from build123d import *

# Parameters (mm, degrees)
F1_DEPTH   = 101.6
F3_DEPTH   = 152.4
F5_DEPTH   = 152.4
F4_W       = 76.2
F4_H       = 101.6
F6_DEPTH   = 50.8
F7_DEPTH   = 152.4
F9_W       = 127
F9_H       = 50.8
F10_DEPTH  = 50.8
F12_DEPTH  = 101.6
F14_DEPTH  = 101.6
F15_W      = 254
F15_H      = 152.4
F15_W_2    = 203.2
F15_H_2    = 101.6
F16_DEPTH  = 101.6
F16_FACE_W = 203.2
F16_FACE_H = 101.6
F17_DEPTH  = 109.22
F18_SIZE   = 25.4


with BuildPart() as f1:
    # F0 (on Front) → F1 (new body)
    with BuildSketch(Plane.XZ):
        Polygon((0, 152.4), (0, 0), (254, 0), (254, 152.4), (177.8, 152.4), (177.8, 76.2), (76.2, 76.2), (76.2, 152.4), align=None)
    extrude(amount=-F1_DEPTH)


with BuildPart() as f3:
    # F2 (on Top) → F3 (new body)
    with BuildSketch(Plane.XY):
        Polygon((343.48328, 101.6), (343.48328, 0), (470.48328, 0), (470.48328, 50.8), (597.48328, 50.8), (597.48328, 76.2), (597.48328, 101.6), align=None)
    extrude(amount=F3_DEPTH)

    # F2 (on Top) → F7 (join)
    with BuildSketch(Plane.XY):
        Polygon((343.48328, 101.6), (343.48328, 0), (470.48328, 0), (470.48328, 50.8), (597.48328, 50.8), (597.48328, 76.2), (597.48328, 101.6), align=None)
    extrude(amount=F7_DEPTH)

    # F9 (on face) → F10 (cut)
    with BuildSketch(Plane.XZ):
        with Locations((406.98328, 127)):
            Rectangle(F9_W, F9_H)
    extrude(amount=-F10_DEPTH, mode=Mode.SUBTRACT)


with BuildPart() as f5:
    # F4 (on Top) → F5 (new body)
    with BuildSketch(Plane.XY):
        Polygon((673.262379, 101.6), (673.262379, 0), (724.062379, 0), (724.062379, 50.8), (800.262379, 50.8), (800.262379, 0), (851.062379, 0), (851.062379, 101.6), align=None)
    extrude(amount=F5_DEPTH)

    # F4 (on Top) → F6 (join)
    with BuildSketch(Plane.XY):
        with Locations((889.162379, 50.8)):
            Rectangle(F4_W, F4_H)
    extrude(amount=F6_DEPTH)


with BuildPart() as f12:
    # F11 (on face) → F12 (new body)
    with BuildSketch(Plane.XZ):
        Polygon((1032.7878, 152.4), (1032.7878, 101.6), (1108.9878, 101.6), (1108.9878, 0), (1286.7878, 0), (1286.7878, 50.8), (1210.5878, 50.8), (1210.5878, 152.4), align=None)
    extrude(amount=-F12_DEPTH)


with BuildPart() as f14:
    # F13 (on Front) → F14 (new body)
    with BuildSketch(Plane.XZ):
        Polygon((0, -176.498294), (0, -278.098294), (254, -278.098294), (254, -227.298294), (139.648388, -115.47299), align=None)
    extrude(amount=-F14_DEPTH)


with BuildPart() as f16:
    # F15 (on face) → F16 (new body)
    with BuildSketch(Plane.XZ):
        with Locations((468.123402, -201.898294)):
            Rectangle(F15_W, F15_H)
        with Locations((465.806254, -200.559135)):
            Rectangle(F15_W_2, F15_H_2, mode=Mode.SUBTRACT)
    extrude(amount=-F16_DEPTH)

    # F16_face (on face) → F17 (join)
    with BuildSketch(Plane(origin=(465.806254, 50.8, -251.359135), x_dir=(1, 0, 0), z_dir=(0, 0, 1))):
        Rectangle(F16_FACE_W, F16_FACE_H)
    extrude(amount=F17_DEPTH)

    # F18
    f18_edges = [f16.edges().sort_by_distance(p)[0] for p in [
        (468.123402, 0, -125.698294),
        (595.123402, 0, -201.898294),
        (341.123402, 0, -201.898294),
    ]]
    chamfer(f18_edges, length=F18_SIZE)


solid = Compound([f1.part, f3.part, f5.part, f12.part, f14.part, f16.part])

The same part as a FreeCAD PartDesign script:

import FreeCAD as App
import Part
import Sketcher
Q = App.Units.Quantity


def edges_at(feature, points):
    """Names of the edges that pass closest to the given points."""
    edges = feature.Shape.Edges
    near = lambda p: min(range(len(edges)), key=lambda i: edges[i].distToShape(Part.Vertex(*p))[0])
    return sorted({f"Edge{near(p) + 1}" for p in points})

doc = App.newDocument("Part")
body = doc.addObject("PartDesign::Body", "Body")

# Sketch on XZ plane
sketch1 = doc.addObject("Sketcher::SketchObject", "Sketch")
body.addObject(sketch1)
sketch1.AttachmentSupport = (doc.XZ_Plane, [""])
sketch1.MapMode = "FlatFace"
sketch1.addGeometry(Part.LineSegment(App.Vector(0, 152.4, 0), App.Vector(0, 0, 0)), False)
sketch1.addGeometry(Part.LineSegment(App.Vector(0, 0, 0), App.Vector(254, 0, 0)), False)
sketch1.addGeometry(Part.LineSegment(App.Vector(254, 0, 0), App.Vector(254, 152.4, 0)), False)
sketch1.addGeometry(Part.LineSegment(App.Vector(254, 152.4, 0), App.Vector(177.8, 152.4, 0)), False)
sketch1.addGeometry(Part.LineSegment(App.Vector(177.8, 152.4, 0), App.Vector(177.8, 76.2, 0)), False)
sketch1.addGeometry(Part.LineSegment(App.Vector(177.8, 76.2, 0), App.Vector(76.2, 76.2, 0)), False)
sketch1.addGeometry(Part.LineSegment(App.Vector(76.2, 76.2, 0), App.Vector(76.2, 152.4, 0)), False)
sketch1.addGeometry(Part.LineSegment(App.Vector(76.2, 152.4, 0), App.Vector(0, 152.4, 0)), False)
sketch1.addConstraint(Sketcher.Constraint("Coincident", 0, 2, 1, 1))
sketch1.addConstraint(Sketcher.Constraint("Coincident", 1, 2, 2, 1))
sketch1.addConstraint(Sketcher.Constraint("Coincident", 2, 2, 3, 1))
sketch1.addConstraint(Sketcher.Constraint("Coincident", 3, 2, 4, 1))
sketch1.addConstraint(Sketcher.Constraint("Coincident", 4, 2, 5, 1))
sketch1.addConstraint(Sketcher.Constraint("Coincident", 5, 2, 6, 1))
sketch1.addConstraint(Sketcher.Constraint("Coincident", 6, 2, 7, 1))
sketch1.addConstraint(Sketcher.Constraint("Coincident", 7, 2, 0, 1))
sketch1.addConstraint(Sketcher.Constraint("Vertical", 0))
sketch1.addConstraint(Sketcher.Constraint("Horizontal", 1))
sketch1.addConstraint(Sketcher.Constraint("Vertical", 2))
sketch1.addConstraint(Sketcher.Constraint("Horizontal", 3))
sketch1.addConstraint(Sketcher.Constraint("Vertical", 4))
sketch1.addConstraint(Sketcher.Constraint("Horizontal", 5))
sketch1.addConstraint(Sketcher.Constraint("Vertical", 6))
sketch1.addConstraint(Sketcher.Constraint("Horizontal", 7))
sketch1.addConstraint(Sketcher.Constraint("Coincident", 0, 2, -1, 1))
sketch1.addConstraint(Sketcher.Constraint("Horizontal", 3, 2, 6, 2))
sketch1.addConstraint(Sketcher.Constraint("Equal", 3, 7))
sketch1.addConstraint(Sketcher.Constraint("Equal", 7, 4))
sketch1.addConstraint(Sketcher.Constraint("DistanceX", 1, 1, 1, 2, Q("10 in")))
sketch1.addConstraint(Sketcher.Constraint("DistanceX", 3, 2, 3, 1, Q("3 in")))
sketch1.addConstraint(Sketcher.Constraint("DistanceY", 0, 2, 0, 1, Q("6 in")))
pad1 = doc.addObject("PartDesign::Pad", "Pad")
body.addObject(pad1)
pad1.Profile = sketch1
pad1.Length = Q("4 in")
pad1.Reversed = True
body2 = doc.addObject("PartDesign::Body", "Body001")

# Sketch on XY plane
sketch2 = doc.addObject("Sketcher::SketchObject", "Sketch001")
body2.addObject(sketch2)
sketch2.AttachmentSupport = (doc.getObject("XY_Plane001"), [""])
sketch2.MapMode = "FlatFace"
sketch2.addGeometry(Part.LineSegment(App.Vector(343.48328, 101.6, 0), App.Vector(343.48328, 0, 0)), False)
sketch2.addGeometry(Part.LineSegment(App.Vector(343.48328, 0, 0), App.Vector(470.48328, 0, 0)), False)
sketch2.addGeometry(Part.LineSegment(App.Vector(470.48328, 0, 0), App.Vector(470.48328, 50.8, 0)), False)
sketch2.addGeometry(Part.LineSegment(App.Vector(470.48328, 50.8, 0), App.Vector(597.48328, 50.8, 0)), False)
sketch2.addGeometry(Part.LineSegment(App.Vector(597.48328, 50.8, 0), App.Vector(597.48328, 101.6, 0)), False)
sketch2.addGeometry(Part.LineSegment(App.Vector(597.48328, 101.6, 0), App.Vector(343.48328, 101.6, 0)), False)
sketch2.addConstraint(Sketcher.Constraint("Coincident", 0, 2, 1, 1))
sketch2.addConstraint(Sketcher.Constraint("Coincident", 1, 2, 2, 1))
sketch2.addConstraint(Sketcher.Constraint("Coincident", 2, 2, 3, 1))
sketch2.addConstraint(Sketcher.Constraint("Coincident", 3, 2, 4, 1))
sketch2.addConstraint(Sketcher.Constraint("Coincident", 4, 2, 5, 1))
sketch2.addConstraint(Sketcher.Constraint("Coincident", 5, 2, 0, 1))
sketch2.addConstraint(Sketcher.Constraint("Vertical", 0))
sketch2.addConstraint(Sketcher.Constraint("Horizontal", 1))
sketch2.addConstraint(Sketcher.Constraint("Vertical", 2))
sketch2.addConstraint(Sketcher.Constraint("Horizontal", 3))
sketch2.addConstraint(Sketcher.Constraint("Vertical", 4))
sketch2.addConstraint(Sketcher.Constraint("Horizontal", 5))
sketch2.addConstraint(Sketcher.Constraint("PointOnObject", 0, 2, -1))
sketch2.addConstraint(Sketcher.Constraint("Equal", 1, 3))
sketch2.addConstraint(Sketcher.Constraint("Equal", 2, 4))
sketch2.addConstraint(Sketcher.Constraint("DistanceX", 1, 1, 1, 2, Q("5 in")))
sketch2.addConstraint(Sketcher.Constraint("DistanceY", 0, 2, 0, 1, Q("4 in")))
sketch2.addConstraint(Sketcher.Constraint("DistanceX", -1, 1, 0, 2, Q("343.48328 mm")))
pad2 = doc.addObject("PartDesign::Pad", "Pad001")
body2.addObject(pad2)
pad2.Profile = sketch2
pad2.Length = Q("6 in")

# Sketch on XY plane
sketch3 = doc.addObject("Sketcher::SketchObject", "Sketch002")
body2.addObject(sketch3)
sketch3.AttachmentSupport = (doc.getObject("XY_Plane001"), [""])
sketch3.MapMode = "FlatFace"
sketch3.addGeometry(Part.LineSegment(App.Vector(343.48328, 101.6, 0), App.Vector(343.48328, 0, 0)), False)
sketch3.addGeometry(Part.LineSegment(App.Vector(343.48328, 0, 0), App.Vector(470.48328, 0, 0)), False)
sketch3.addGeometry(Part.LineSegment(App.Vector(470.48328, 0, 0), App.Vector(470.48328, 50.8, 0)), False)
sketch3.addGeometry(Part.LineSegment(App.Vector(470.48328, 50.8, 0), App.Vector(597.48328, 50.8, 0)), False)
sketch3.addGeometry(Part.LineSegment(App.Vector(597.48328, 50.8, 0), App.Vector(597.48328, 101.6, 0)), False)
sketch3.addGeometry(Part.LineSegment(App.Vector(597.48328, 101.6, 0), App.Vector(343.48328, 101.6, 0)), False)
sketch3.addConstraint(Sketcher.Constraint("Coincident", 0, 2, 1, 1))
sketch3.addConstraint(Sketcher.Constraint("Coincident", 1, 2, 2, 1))
sketch3.addConstraint(Sketcher.Constraint("Coincident", 2, 2, 3, 1))
sketch3.addConstraint(Sketcher.Constraint("Coincident", 3, 2, 4, 1))
sketch3.addConstraint(Sketcher.Constraint("Coincident", 4, 2, 5, 1))
sketch3.addConstraint(Sketcher.Constraint("Coincident", 5, 2, 0, 1))
sketch3.addConstraint(Sketcher.Constraint("Vertical", 0))
sketch3.addConstraint(Sketcher.Constraint("Horizontal", 1))
sketch3.addConstraint(Sketcher.Constraint("Vertical", 2))
sketch3.addConstraint(Sketcher.Constraint("Horizontal", 3))
sketch3.addConstraint(Sketcher.Constraint("Vertical", 4))
sketch3.addConstraint(Sketcher.Constraint("Horizontal", 5))
sketch3.addConstraint(Sketcher.Constraint("PointOnObject", 0, 2, -1))
sketch3.addConstraint(Sketcher.Constraint("Equal", 1, 3))
sketch3.addConstraint(Sketcher.Constraint("Equal", 2, 4))
sketch3.addConstraint(Sketcher.Constraint("DistanceX", 1, 1, 1, 2, Q("5 in")))
sketch3.addConstraint(Sketcher.Constraint("DistanceY", 0, 2, 0, 1, Q("4 in")))
sketch3.addConstraint(Sketcher.Constraint("DistanceX", -1, 1, 0, 2, Q("343.48328 mm")))
pad3 = doc.addObject("PartDesign::Pad", "Pad002")
body2.addObject(pad3)
pad3.Profile = sketch3
pad3.Length = Q("6 in")

# Sketch on XZ plane
sketch4 = doc.addObject("Sketcher::SketchObject", "Sketch003")
body2.addObject(sketch4)
sketch4.AttachmentSupport = (doc.getObject("XZ_Plane001"), [""])
sketch4.MapMode = "FlatFace"
sketch4.addGeometry(Part.LineSegment(App.Vector(343.48328, 152.4, 0), App.Vector(343.48328, 101.6, 0)), False)
sketch4.addGeometry(Part.LineSegment(App.Vector(343.48328, 101.6, 0), App.Vector(470.48328, 101.6, 0)), False)
sketch4.addGeometry(Part.LineSegment(App.Vector(470.48328, 101.6, 0), App.Vector(470.48328, 152.4, 0)), False)
sketch4.addGeometry(Part.LineSegment(App.Vector(470.48328, 152.4, 0), App.Vector(343.48328, 152.4, 0)), False)
sketch4.addConstraint(Sketcher.Constraint("Coincident", 0, 2, 1, 1))
sketch4.addConstraint(Sketcher.Constraint("Coincident", 1, 2, 2, 1))
sketch4.addConstraint(Sketcher.Constraint("Coincident", 2, 2, 3, 1))
sketch4.addConstraint(Sketcher.Constraint("Coincident", 3, 2, 0, 1))
sketch4.addConstraint(Sketcher.Constraint("Vertical", 0))
sketch4.addConstraint(Sketcher.Constraint("Horizontal", 1))
sketch4.addConstraint(Sketcher.Constraint("Vertical", 2))
sketch4.addConstraint(Sketcher.Constraint("Horizontal", 3))
sketch4.addConstraint(Sketcher.Constraint("DistanceX", 1, 1, 1, 2, Q("5 in")))
sketch4.addConstraint(Sketcher.Constraint("DistanceY", 0, 2, 0, 1, Q("2 in")))
sketch4.addConstraint(Sketcher.Constraint("DistanceY", -1, 1, 0, 2, Q("4 in")))
sketch4.addConstraint(Sketcher.Constraint("DistanceX", -1, 1, 0, 2, Q("343.48328 mm")))
pocket1 = doc.addObject("PartDesign::Pocket", "Pocket")
body2.addObject(pocket1)
pocket1.Profile = sketch4
pocket1.Length = Q("2 in")
body3 = doc.addObject("PartDesign::Body", "Body002")

# Sketch on XY plane
sketch5 = doc.addObject("Sketcher::SketchObject", "Sketch004")
body3.addObject(sketch5)
sketch5.AttachmentSupport = (doc.getObject("XY_Plane002"), [""])
sketch5.MapMode = "FlatFace"
sketch5.addGeometry(Part.LineSegment(App.Vector(673.262379, 101.6, 0), App.Vector(673.262379, 0, 0)), False)
sketch5.addGeometry(Part.LineSegment(App.Vector(673.262379, 0, 0), App.Vector(724.062379, 0, 0)), False)
sketch5.addGeometry(Part.LineSegment(App.Vector(724.062379, 0, 0), App.Vector(724.062379, 50.8, 0)), False)
sketch5.addGeometry(Part.LineSegment(App.Vector(724.062379, 50.8, 0), App.Vector(800.262379, 50.8, 0)), False)
sketch5.addGeometry(Part.LineSegment(App.Vector(800.262379, 50.8, 0), App.Vector(800.262379, 0, 0)), False)
sketch5.addGeometry(Part.LineSegment(App.Vector(800.262379, 0, 0), App.Vector(851.062379, 0, 0)), False)
sketch5.addGeometry(Part.LineSegment(App.Vector(851.062379, 0, 0), App.Vector(851.062379, 101.6, 0)), False)
sketch5.addGeometry(Part.LineSegment(App.Vector(851.062379, 101.6, 0), App.Vector(673.262379, 101.6, 0)), False)
sketch5.addConstraint(Sketcher.Constraint("Coincident", 0, 2, 1, 1))
sketch5.addConstraint(Sketcher.Constraint("Coincident", 1, 2, 2, 1))
sketch5.addConstraint(Sketcher.Constraint("Coincident", 2, 2, 3, 1))
sketch5.addConstraint(Sketcher.Constraint("Coincident", 3, 2, 4, 1))
sketch5.addConstraint(Sketcher.Constraint("Coincident", 4, 2, 5, 1))
sketch5.addConstraint(Sketcher.Constraint("Coincident", 5, 2, 6, 1))
sketch5.addConstraint(Sketcher.Constraint("Coincident", 6, 2, 7, 1))
sketch5.addConstraint(Sketcher.Constraint("Coincident", 7, 2, 0, 1))
sketch5.addConstraint(Sketcher.Constraint("Vertical", 0))
sketch5.addConstraint(Sketcher.Constraint("Horizontal", 1))
sketch5.addConstraint(Sketcher.Constraint("Vertical", 2))
sketch5.addConstraint(Sketcher.Constraint("Horizontal", 3))
sketch5.addConstraint(Sketcher.Constraint("Vertical", 4))
sketch5.addConstraint(Sketcher.Constraint("Horizontal", 5))
sketch5.addConstraint(Sketcher.Constraint("Vertical", 6))
sketch5.addConstraint(Sketcher.Constraint("Horizontal", 7))
sketch5.addConstraint(Sketcher.Constraint("PointOnObject", 0, 2, -1))
sketch5.addConstraint(Sketcher.Constraint("PointOnObject", 4, 2, -1))
sketch5.addConstraint(Sketcher.Constraint("Equal", 1, 5))
sketch5.addConstraint(Sketcher.Constraint("Equal", 5, 2))
sketch5.addConstraint(Sketcher.Constraint("DistanceX", 1, 1, 1, 2, Q("2 in")))
sketch5.addConstraint(Sketcher.Constraint("DistanceX", 3, 1, 3, 2, Q("3 in")))
sketch5.addConstraint(Sketcher.Constraint("DistanceY", 0, 2, 0, 1, Q("4 in")))
sketch5.addConstraint(Sketcher.Constraint("DistanceX", -1, 1, 0, 2, Q("673.262379 mm")))
pad4 = doc.addObject("PartDesign::Pad", "Pad003")
body3.addObject(pad4)
pad4.Profile = sketch5
pad4.Length = Q("6 in")

# Sketch on XY plane
sketch6 = doc.addObject("Sketcher::SketchObject", "Sketch005")
body3.addObject(sketch6)
sketch6.AttachmentSupport = (doc.getObject("XY_Plane002"), [""])
sketch6.MapMode = "FlatFace"
sketch6.addGeometry(Part.LineSegment(App.Vector(851.062379, 101.6, 0), App.Vector(851.062379, 0, 0)), False)
sketch6.addGeometry(Part.LineSegment(App.Vector(851.062379, 0, 0), App.Vector(927.262379, 0, 0)), False)
sketch6.addGeometry(Part.LineSegment(App.Vector(927.262379, 0, 0), App.Vector(927.262379, 101.6, 0)), False)
sketch6.addGeometry(Part.LineSegment(App.Vector(927.262379, 101.6, 0), App.Vector(851.062379, 101.6, 0)), False)
sketch6.addConstraint(Sketcher.Constraint("Coincident", 0, 2, 1, 1))
sketch6.addConstraint(Sketcher.Constraint("Coincident", 1, 2, 2, 1))
sketch6.addConstraint(Sketcher.Constraint("Coincident", 2, 2, 3, 1))
sketch6.addConstraint(Sketcher.Constraint("Coincident", 3, 2, 0, 1))
sketch6.addConstraint(Sketcher.Constraint("Vertical", 0))
sketch6.addConstraint(Sketcher.Constraint("Horizontal", 1))
sketch6.addConstraint(Sketcher.Constraint("Vertical", 2))
sketch6.addConstraint(Sketcher.Constraint("Horizontal", 3))
sketch6.addConstraint(Sketcher.Constraint("PointOnObject", 0, 2, -1))
sketch6.addConstraint(Sketcher.Constraint("DistanceX", 1, 1, 1, 2, Q("3 in")))
sketch6.addConstraint(Sketcher.Constraint("DistanceY", 0, 2, 0, 1, Q("4 in")))
sketch6.addConstraint(Sketcher.Constraint("DistanceX", -1, 1, 0, 2, Q("851.062379 mm")))
pad5 = doc.addObject("PartDesign::Pad", "Pad004")
body3.addObject(pad5)
pad5.Profile = sketch6
pad5.Length = Q("2 in")
body4 = doc.addObject("PartDesign::Body", "Body003")

# Sketch on XZ plane
sketch7 = doc.addObject("Sketcher::SketchObject", "Sketch006")
body4.addObject(sketch7)
sketch7.AttachmentSupport = (doc.getObject("XZ_Plane003"), [""])
sketch7.MapMode = "FlatFace"
sketch7.addGeometry(Part.LineSegment(App.Vector(1032.7878, 152.4, 0), App.Vector(1032.7878, 101.6, 0)), False)
sketch7.addGeometry(Part.LineSegment(App.Vector(1032.7878, 101.6, 0), App.Vector(1108.9878, 101.6, 0)), False)
sketch7.addGeometry(Part.LineSegment(App.Vector(1108.9878, 101.6, 0), App.Vector(1108.9878, 0, 0)), False)
sketch7.addGeometry(Part.LineSegment(App.Vector(1108.9878, 0, 0), App.Vector(1286.7878, 0, 0)), False)
sketch7.addGeometry(Part.LineSegment(App.Vector(1286.7878, 0, 0), App.Vector(1286.7878, 50.8, 0)), False)
sketch7.addGeometry(Part.LineSegment(App.Vector(1286.7878, 50.8, 0), App.Vector(1210.5878, 50.8, 0)), False)
sketch7.addGeometry(Part.LineSegment(App.Vector(1210.5878, 50.8, 0), App.Vector(1210.5878, 152.4, 0)), False)
sketch7.addGeometry(Part.LineSegment(App.Vector(1210.5878, 152.4, 0), App.Vector(1032.7878, 152.4, 0)), False)
sketch7.addConstraint(Sketcher.Constraint("Coincident", 0, 2, 1, 1))
sketch7.addConstraint(Sketcher.Constraint("Coincident", 1, 2, 2, 1))
sketch7.addConstraint(Sketcher.Constraint("Coincident", 2, 2, 3, 1))
sketch7.addConstraint(Sketcher.Constraint("Coincident", 3, 2, 4, 1))
sketch7.addConstraint(Sketcher.Constraint("Coincident", 4, 2, 5, 1))
sketch7.addConstraint(Sketcher.Constraint("Coincident", 5, 2, 6, 1))
sketch7.addConstraint(Sketcher.Constraint("Coincident", 6, 2, 7, 1))
sketch7.addConstraint(Sketcher.Constraint("Coincident", 7, 2, 0, 1))
sketch7.addConstraint(Sketcher.Constraint("Vertical", 0))
sketch7.addConstraint(Sketcher.Constraint("Horizontal", 1))
sketch7.addConstraint(Sketcher.Constraint("Vertical", 2))
sketch7.addConstraint(Sketcher.Constraint("Horizontal", 3))
sketch7.addConstraint(Sketcher.Constraint("Vertical", 4))
sketch7.addConstraint(Sketcher.Constraint("Horizontal", 5))
sketch7.addConstraint(Sketcher.Constraint("Vertical", 6))
sketch7.addConstraint(Sketcher.Constraint("Horizontal", 7))
sketch7.addConstraint(Sketcher.Constraint("PointOnObject", 2, 2, -1))
sketch7.addConstraint(Sketcher.Constraint("Equal", 1, 5))
sketch7.addConstraint(Sketcher.Constraint("Equal", 0, 4))
sketch7.addConstraint(Sketcher.Constraint("DistanceX", 1, 1, 1, 2, Q("3 in")))
sketch7.addConstraint(Sketcher.Constraint("DistanceX", 3, 1, 3, 2, Q("7 in")))
sketch7.addConstraint(Sketcher.Constraint("DistanceY", 0, 2, 0, 1, Q("2 in")))
sketch7.addConstraint(Sketcher.Constraint("DistanceY", 2, 2, 2, 1, Q("4 in")))
sketch7.addConstraint(Sketcher.Constraint("DistanceX", -1, 1, 0, 2, Q("1032.7878 mm")))
pad6 = doc.addObject("PartDesign::Pad", "Pad005")
body4.addObject(pad6)
pad6.Profile = sketch7
pad6.Length = Q("4 in")
pad6.Reversed = True
body5 = doc.addObject("PartDesign::Body", "Body004")

# Sketch on XZ plane
sketch8 = doc.addObject("Sketcher::SketchObject", "Sketch007")
body5.addObject(sketch8)
sketch8.AttachmentSupport = (doc.getObject("XZ_Plane004"), [""])
sketch8.MapMode = "FlatFace"
sketch8.addGeometry(Part.LineSegment(App.Vector(0, -176.498294, 0), App.Vector(0, -278.098294, 0)), False)
sketch8.addGeometry(Part.LineSegment(App.Vector(0, -278.098294, 0), App.Vector(254, -278.098294, 0)), False)
sketch8.addGeometry(Part.LineSegment(App.Vector(254, -278.098294, 0), App.Vector(254, -227.298294, 0)), False)
sketch8.addGeometry(Part.LineSegment(App.Vector(254, -227.298294, 0), App.Vector(139.648388, -115.47299, 0)), False)
sketch8.addGeometry(Part.LineSegment(App.Vector(139.648388, -115.47299, 0), App.Vector(0, -176.498294, 0)), False)
sketch8.addConstraint(Sketcher.Constraint("Coincident", 0, 2, 1, 1))
sketch8.addConstraint(Sketcher.Constraint("Coincident", 1, 2, 2, 1))
sketch8.addConstraint(Sketcher.Constraint("Coincident", 2, 2, 3, 1))
sketch8.addConstraint(Sketcher.Constraint("Coincident", 3, 2, 4, 1))
sketch8.addConstraint(Sketcher.Constraint("Coincident", 4, 2, 0, 1))
sketch8.addConstraint(Sketcher.Constraint("Vertical", 0))
sketch8.addConstraint(Sketcher.Constraint("Horizontal", 1))
sketch8.addConstraint(Sketcher.Constraint("Vertical", 2))
sketch8.addConstraint(Sketcher.Constraint("PointOnObject", 0, 2, -2))
sketch8.addConstraint(Sketcher.Constraint("DistanceX", 1, 1, 1, 2, Q("10 in")))
sketch8.addConstraint(Sketcher.Constraint("DistanceY", 0, 2, 0, 1, Q("4 in")))
sketch8.addConstraint(Sketcher.Constraint("DistanceY", 2, 1, 2, 2, Q("2 in")))
sketch8.addConstraint(Sketcher.Constraint("Distance", 4, Q("6 in")))
sketch8.addConstraint(Sketcher.Constraint("DistanceX", -1, 1, 3, 2, Q("139.648388 mm")))
sketch8.addConstraint(Sketcher.Constraint("DistanceY", 3, 2, -1, 1, Q("115.47299 mm")))
pad7 = doc.addObject("PartDesign::Pad", "Pad006")
body5.addObject(pad7)
pad7.Profile = sketch8
pad7.Length = Q("4 in")
pad7.Reversed = True
body6 = doc.addObject("PartDesign::Body", "Body005")

# Sketch on XZ plane
sketch9 = doc.addObject("Sketcher::SketchObject", "Sketch008")
body6.addObject(sketch9)
sketch9.AttachmentSupport = (doc.getObject("XZ_Plane005"), [""])
sketch9.MapMode = "FlatFace"
sketch9.addGeometry(Part.LineSegment(App.Vector(341.123402, -125.698294, 0), App.Vector(341.123402, -278.098294, 0)), False)
sketch9.addGeometry(Part.LineSegment(App.Vector(341.123402, -278.098294, 0), App.Vector(595.123402, -278.098294, 0)), False)
sketch9.addGeometry(Part.LineSegment(App.Vector(595.123402, -278.098294, 0), App.Vector(595.123402, -125.698294, 0)), False)
sketch9.addGeometry(Part.LineSegment(App.Vector(595.123402, -125.698294, 0), App.Vector(341.123402, -125.698294, 0)), False)
sketch9.addGeometry(Part.LineSegment(App.Vector(567.406254, -251.359135, 0), App.Vector(364.206254, -251.359135, 0)), False)
sketch9.addGeometry(Part.LineSegment(App.Vector(364.206254, -251.359135, 0), App.Vector(364.206254, -149.759135, 0)), False)
sketch9.addGeometry(Part.LineSegment(App.Vector(364.206254, -149.759135, 0), App.Vector(567.406254, -149.759135, 0)), False)
sketch9.addGeometry(Part.LineSegment(App.Vector(567.406254, -149.759135, 0), App.Vector(567.406254, -251.359135, 0)), False)
sketch9.addConstraint(Sketcher.Constraint("Coincident", 0, 2, 1, 1))
sketch9.addConstraint(Sketcher.Constraint("Coincident", 1, 2, 2, 1))
sketch9.addConstraint(Sketcher.Constraint("Coincident", 2, 2, 3, 1))
sketch9.addConstraint(Sketcher.Constraint("Coincident", 3, 2, 0, 1))
sketch9.addConstraint(Sketcher.Constraint("Coincident", 4, 2, 5, 1))
sketch9.addConstraint(Sketcher.Constraint("Coincident", 5, 2, 6, 1))
sketch9.addConstraint(Sketcher.Constraint("Coincident", 6, 2, 7, 1))
sketch9.addConstraint(Sketcher.Constraint("Coincident", 7, 2, 4, 1))
sketch9.addConstraint(Sketcher.Constraint("Vertical", 0))
sketch9.addConstraint(Sketcher.Constraint("Horizontal", 1))
sketch9.addConstraint(Sketcher.Constraint("Vertical", 2))
sketch9.addConstraint(Sketcher.Constraint("Horizontal", 3))
sketch9.addConstraint(Sketcher.Constraint("Horizontal", 4))
sketch9.addConstraint(Sketcher.Constraint("Vertical", 5))
sketch9.addConstraint(Sketcher.Constraint("Horizontal", 6))
sketch9.addConstraint(Sketcher.Constraint("Vertical", 7))
sketch9.addConstraint(Sketcher.Constraint("DistanceX", 1, 1, 1, 2, Q("10 in")))
sketch9.addConstraint(Sketcher.Constraint("DistanceX", 4, 2, 4, 1, Q("8 in")))
sketch9.addConstraint(Sketcher.Constraint("DistanceY", 0, 2, 0, 1, Q("6 in")))
sketch9.addConstraint(Sketcher.Constraint("DistanceY", 5, 1, 5, 2, Q("4 in")))
sketch9.addConstraint(Sketcher.Constraint("DistanceX", -1, 1, 0, 2, Q("341.123402 mm")))
sketch9.addConstraint(Sketcher.Constraint("DistanceY", 0, 2, 4, 2, Q("26.739159 mm")))
sketch9.addConstraint(Sketcher.Constraint("DistanceX", 4, 2, 1, 2, Q("230.917148 mm")))
sketch9.addConstraint(Sketcher.Constraint("DistanceY", 0, 2, -1, 1, Q("278.098294 mm")))
pad8 = doc.addObject("PartDesign::Pad", "Pad007")
body6.addObject(pad8)
pad8.Profile = sketch9
pad8.Length = Q("4 in")
pad8.Reversed = True

# Sketch on XY plane
sketch10 = doc.addObject("Sketcher::SketchObject", "Sketch009")
body6.addObject(sketch10)
sketch10.AttachmentSupport = (doc.getObject("XY_Plane005"), [""])
sketch10.MapMode = "FlatFace"
sketch10.AttachmentOffset = App.Placement(App.Vector(0, 0, -251.359135), App.Rotation())
sketch10.addGeometry(Part.LineSegment(App.Vector(364.206254, 101.6, 0), App.Vector(364.206254, 0, 0)), False)
sketch10.addGeometry(Part.LineSegment(App.Vector(364.206254, 0, 0), App.Vector(567.406254, 0, 0)), False)
sketch10.addGeometry(Part.LineSegment(App.Vector(567.406254, 0, 0), App.Vector(567.406254, 101.6, 0)), False)
sketch10.addGeometry(Part.LineSegment(App.Vector(567.406254, 101.6, 0), App.Vector(364.206254, 101.6, 0)), False)
sketch10.addConstraint(Sketcher.Constraint("Coincident", 0, 2, 1, 1))
sketch10.addConstraint(Sketcher.Constraint("Coincident", 1, 2, 2, 1))
sketch10.addConstraint(Sketcher.Constraint("Coincident", 2, 2, 3, 1))
sketch10.addConstraint(Sketcher.Constraint("Coincident", 3, 2, 0, 1))
sketch10.addConstraint(Sketcher.Constraint("Vertical", 0))
sketch10.addConstraint(Sketcher.Constraint("Horizontal", 1))
sketch10.addConstraint(Sketcher.Constraint("Vertical", 2))
sketch10.addConstraint(Sketcher.Constraint("Horizontal", 3))
sketch10.addConstraint(Sketcher.Constraint("PointOnObject", 0, 2, -1))
sketch10.addConstraint(Sketcher.Constraint("DistanceX", 1, 1, 1, 2, Q("8 in")))
sketch10.addConstraint(Sketcher.Constraint("DistanceY", 0, 2, 0, 1, Q("4 in")))
sketch10.addConstraint(Sketcher.Constraint("DistanceX", -1, 1, 0, 2, Q("364.206254 mm")))
pad9 = doc.addObject("PartDesign::Pad", "Pad008")
body6.addObject(pad9)
pad9.Profile = sketch10
pad9.Length = Q("4.3 in")
doc.recompute()

chamfer = doc.addObject("PartDesign::Chamfer", "Chamfer")
body6.addObject(chamfer)
chamfer.Base = (pad9, edges_at(pad9, [(468.123, 0, -125.698), (595.123, 0, -201.898), (341.123, 0, -201.898)]))
chamfer.Size = Q("1 in")

doc.recompute()
